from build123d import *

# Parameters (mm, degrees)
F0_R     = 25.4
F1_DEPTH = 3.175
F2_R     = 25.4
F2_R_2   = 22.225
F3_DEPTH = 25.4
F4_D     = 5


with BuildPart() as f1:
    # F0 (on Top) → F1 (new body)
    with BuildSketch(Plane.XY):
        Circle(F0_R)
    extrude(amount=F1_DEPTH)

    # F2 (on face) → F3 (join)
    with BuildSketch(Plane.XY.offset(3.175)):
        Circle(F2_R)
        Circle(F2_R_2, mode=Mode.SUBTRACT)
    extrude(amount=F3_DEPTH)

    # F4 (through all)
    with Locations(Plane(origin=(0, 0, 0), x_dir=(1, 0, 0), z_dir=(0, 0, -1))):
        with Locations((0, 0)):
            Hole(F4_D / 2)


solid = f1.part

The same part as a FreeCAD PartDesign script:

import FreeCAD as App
import Part
import Sketcher
from FreeCAD import Vector
Q = App.Units.Quantity

doc = App.newDocument("Part")
body = doc.addObject("PartDesign::Body", "Body")

# Sketch on XY plane
sketch1 = body.newObject("Sketcher::SketchObject", "Sketch")
sketch1.AttachmentSupport = (doc.getObject("XY_Plane"), [""])
sketch1.MapMode = "FlatFace"
sketch1.addGeometry(Part.Circle(Vector(0, 0, 0), Vector(0, 0, 1), 25.4), False)
sketch1.addConstraint(Sketcher.Constraint("Coincident", 0, 3, -1, 1))
sketch1.addConstraint(Sketcher.Constraint("Diameter", 0, Q("2 in")))
pad1 = body.newObject("PartDesign::Pad", "Pad")
pad1.Profile = sketch1
pad1.Length = Q("0.125 in")

# Sketch on XY plane
sketch2 = body.newObject("Sketcher::SketchObject", "Sketch001")
sketch2.AttachmentSupport = (doc.getObject("XY_Plane"), [""])
sketch2.MapMode = "FlatFace"
sketch2.AttachmentOffset = App.Placement(Vector(0, 0, 0.125 * 25.4), App.Rotation())
sketch2.addGeometry(Part.Circle(Vector(0, 0, 0), Vector(0, 0, 1), 25.4), False)
sketch2.addGeometry(Part.Circle(Vector(0, 0, 0), Vector(0, 0, 1), 22.225), False)
sketch2.addConstraint(Sketcher.Constraint("Coincident", 0, 3, -1, 1))
sketch2.addConstraint(Sketcher.Constraint("Coincident", 1, 3, -1, 1))
sketch2.addConstraint(Sketcher.Constraint("Diameter", 0, Q("2 in")))
sketch2.addConstraint(Sketcher.Constraint("Diameter", 1, Q("1.75 in")))
pad2 = body.newObject("PartDesign::Pad", "Pad001")
pad2.Profile = sketch2
pad2.Length = Q("1 in")

# Sketch on XY plane
sketch3 = body.newObject("Sketcher::SketchObject", "Sketch002")
sketch3.AttachmentSupport = (doc.getObject("XY_Plane"), [""])
sketch3.MapMode = "FlatFace"
sketch3.addGeometry(Part.Circle(Vector(0, 0, 0), Vector(0, 0, 1), 2.5), False)
sketch3.addConstraint(Sketcher.Constraint("Coincident", 0, 3, -1, 1))
sketch3.addConstraint(Sketcher.Constraint("Diameter", 0, 5.0))
doc.recompute()
hole = body.newObject("PartDesign::Hole", "Hole")
hole.Profile = sketch3
hole.ThreadType = "None"
hole.Diameter = 5
hole.DepthType = "ThroughAll"
hole.Reversed = True

doc.recompute()
